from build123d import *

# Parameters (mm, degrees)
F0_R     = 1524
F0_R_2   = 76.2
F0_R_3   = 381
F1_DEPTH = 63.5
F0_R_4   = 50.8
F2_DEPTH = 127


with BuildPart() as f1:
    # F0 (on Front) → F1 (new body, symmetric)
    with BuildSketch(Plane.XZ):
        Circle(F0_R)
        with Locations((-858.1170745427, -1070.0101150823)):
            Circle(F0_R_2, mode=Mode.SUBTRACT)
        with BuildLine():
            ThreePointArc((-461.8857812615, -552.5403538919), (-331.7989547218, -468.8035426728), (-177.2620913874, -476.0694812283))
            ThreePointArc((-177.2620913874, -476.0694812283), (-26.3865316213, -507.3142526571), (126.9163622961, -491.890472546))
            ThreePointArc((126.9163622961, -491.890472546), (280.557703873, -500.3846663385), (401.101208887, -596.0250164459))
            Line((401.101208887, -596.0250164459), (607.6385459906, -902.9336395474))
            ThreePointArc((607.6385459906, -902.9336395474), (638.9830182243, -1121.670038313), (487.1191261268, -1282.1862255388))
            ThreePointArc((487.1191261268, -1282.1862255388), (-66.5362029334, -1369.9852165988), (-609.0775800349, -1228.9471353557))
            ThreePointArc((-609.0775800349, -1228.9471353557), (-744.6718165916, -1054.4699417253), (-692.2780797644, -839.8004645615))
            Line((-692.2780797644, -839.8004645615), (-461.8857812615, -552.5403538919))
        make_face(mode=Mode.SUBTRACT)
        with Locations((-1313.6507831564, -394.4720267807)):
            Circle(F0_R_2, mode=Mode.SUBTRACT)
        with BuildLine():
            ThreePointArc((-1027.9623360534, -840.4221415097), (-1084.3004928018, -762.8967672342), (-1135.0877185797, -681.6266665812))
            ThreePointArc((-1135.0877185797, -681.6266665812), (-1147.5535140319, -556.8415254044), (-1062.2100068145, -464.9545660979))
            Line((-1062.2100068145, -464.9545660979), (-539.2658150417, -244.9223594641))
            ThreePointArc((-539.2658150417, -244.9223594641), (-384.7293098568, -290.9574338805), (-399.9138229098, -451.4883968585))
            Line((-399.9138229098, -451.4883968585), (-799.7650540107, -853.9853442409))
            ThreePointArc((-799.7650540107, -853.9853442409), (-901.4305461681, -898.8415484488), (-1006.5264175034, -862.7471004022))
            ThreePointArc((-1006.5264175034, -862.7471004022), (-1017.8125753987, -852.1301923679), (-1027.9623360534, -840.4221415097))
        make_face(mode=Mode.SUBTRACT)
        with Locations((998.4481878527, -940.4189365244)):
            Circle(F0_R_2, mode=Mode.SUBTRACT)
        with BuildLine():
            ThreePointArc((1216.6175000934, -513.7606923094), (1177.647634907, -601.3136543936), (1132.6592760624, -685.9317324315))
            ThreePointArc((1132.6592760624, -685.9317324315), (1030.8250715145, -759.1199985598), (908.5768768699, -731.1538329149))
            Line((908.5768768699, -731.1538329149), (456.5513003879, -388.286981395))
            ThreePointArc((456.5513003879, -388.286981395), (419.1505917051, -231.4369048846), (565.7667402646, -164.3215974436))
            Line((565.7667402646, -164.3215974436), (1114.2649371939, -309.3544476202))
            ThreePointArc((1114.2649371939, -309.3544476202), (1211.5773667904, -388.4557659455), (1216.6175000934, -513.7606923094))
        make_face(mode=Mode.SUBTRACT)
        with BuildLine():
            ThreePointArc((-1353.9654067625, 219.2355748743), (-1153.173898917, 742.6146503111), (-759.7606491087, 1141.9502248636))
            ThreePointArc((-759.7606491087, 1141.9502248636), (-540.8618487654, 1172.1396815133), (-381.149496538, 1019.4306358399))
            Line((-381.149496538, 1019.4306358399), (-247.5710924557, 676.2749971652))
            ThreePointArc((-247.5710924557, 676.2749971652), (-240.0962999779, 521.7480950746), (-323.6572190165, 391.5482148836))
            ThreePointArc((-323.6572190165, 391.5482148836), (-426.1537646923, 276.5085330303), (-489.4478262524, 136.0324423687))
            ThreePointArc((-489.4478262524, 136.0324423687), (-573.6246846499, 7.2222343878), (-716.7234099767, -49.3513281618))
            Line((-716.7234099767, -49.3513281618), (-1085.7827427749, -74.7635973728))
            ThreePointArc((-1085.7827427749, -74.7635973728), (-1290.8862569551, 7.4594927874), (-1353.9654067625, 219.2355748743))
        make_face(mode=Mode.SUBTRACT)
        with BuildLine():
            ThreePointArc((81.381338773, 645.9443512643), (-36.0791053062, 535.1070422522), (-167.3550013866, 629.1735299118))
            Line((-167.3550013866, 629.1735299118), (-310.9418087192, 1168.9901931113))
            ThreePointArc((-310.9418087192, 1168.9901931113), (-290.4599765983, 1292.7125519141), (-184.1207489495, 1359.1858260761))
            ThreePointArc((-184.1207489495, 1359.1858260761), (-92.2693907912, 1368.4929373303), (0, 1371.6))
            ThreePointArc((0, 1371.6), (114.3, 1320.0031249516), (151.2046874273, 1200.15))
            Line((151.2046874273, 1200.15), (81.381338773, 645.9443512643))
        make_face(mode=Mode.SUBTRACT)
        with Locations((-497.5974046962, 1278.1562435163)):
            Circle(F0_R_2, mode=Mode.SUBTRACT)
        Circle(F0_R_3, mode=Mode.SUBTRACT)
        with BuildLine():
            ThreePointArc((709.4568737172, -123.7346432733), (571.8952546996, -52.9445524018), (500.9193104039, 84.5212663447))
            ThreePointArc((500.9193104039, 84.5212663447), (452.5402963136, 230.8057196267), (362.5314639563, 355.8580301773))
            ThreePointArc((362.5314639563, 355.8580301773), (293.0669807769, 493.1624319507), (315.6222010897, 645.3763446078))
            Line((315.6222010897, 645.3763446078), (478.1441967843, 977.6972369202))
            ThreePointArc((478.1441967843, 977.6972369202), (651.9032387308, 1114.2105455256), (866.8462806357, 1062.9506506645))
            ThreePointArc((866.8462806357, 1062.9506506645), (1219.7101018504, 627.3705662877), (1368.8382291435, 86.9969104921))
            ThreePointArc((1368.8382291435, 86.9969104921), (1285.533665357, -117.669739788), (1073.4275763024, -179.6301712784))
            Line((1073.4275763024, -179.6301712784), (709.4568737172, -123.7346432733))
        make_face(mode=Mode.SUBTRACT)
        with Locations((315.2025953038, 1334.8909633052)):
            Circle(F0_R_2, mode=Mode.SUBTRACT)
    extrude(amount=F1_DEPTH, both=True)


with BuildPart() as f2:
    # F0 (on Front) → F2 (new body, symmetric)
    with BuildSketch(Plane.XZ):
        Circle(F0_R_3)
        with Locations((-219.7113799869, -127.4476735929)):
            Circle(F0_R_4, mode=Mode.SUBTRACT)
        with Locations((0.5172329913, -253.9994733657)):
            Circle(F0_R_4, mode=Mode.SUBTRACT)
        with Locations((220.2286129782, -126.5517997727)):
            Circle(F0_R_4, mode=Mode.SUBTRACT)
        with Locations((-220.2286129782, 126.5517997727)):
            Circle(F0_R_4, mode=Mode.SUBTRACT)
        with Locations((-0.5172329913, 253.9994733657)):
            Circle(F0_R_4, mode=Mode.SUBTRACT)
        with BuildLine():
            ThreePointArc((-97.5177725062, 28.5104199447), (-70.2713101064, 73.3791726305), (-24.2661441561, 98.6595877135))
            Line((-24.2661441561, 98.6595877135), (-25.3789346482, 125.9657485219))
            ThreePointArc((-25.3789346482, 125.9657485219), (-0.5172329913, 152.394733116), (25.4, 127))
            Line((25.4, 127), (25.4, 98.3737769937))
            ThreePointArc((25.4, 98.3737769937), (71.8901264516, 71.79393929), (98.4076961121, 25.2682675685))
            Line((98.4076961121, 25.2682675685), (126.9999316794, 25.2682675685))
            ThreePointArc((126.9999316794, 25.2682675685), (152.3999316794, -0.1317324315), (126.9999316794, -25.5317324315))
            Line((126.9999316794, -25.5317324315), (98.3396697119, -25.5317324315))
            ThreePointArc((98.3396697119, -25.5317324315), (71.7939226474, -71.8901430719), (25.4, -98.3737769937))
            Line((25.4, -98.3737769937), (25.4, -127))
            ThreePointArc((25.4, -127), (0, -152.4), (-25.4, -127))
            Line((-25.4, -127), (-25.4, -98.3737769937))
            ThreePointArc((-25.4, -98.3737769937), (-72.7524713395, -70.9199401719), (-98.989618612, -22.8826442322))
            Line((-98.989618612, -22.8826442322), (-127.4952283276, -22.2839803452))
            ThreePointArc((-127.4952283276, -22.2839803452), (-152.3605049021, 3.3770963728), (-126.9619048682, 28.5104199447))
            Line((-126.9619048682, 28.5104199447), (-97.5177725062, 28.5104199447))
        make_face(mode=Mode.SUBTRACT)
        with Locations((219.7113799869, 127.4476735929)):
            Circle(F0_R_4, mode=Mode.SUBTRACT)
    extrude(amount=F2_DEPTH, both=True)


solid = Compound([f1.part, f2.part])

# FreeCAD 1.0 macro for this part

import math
import FreeCAD as App
import Part
import Sketcher

V = App.Vector
Q = App.Units.Quantity

doc = App.newDocument("Part")
body = doc.addObject("PartDesign::Body", "Body")

sketch1 = body.newObject("Sketcher::SketchObject", "Sketch")
sketch1.AttachmentSupport = (doc.getObject("XZ_Plane"), [""])
sketch1.MapMode = "FlatFace"
sketch1.addGeometry(Part.Circle(V(0, 0, 0), V(0, 0, 1), 1524), False)
sketch1.addGeometry(Part.Circle(V(-858.117075, -1070.010115, 0), V(0, 0, 1), 76.2), False)
sketch1.addGeometry(Part.LineSegment(V(-692.27808, -839.800465, 0), V(-461.885781, -552.540354, 0)), False)
sketch1.addGeometry(Part.ArcOfCircle(Part.Circle(V(-265.893137, -714.104222, 0), V(0, 0, 1), 254), math.radians(69.577437), math.radians(140.5)), False)
sketch1.addGeometry(Part.ArcOfCircle(Part.Circle(V(0, 0, 0), V(0, 0, 1), 508), math.radians(-110.422563), math.radians(-75.53223)), False)
sketch1.addGeometry(Part.ArcOfCircle(Part.Circle(V(190.374543, -737.835709, 0), V(0, 0, 1), 254), math.radians(33.93899), math.radians(104.46777)), False)
sketch1.addGeometry(Part.LineSegment(V(401.101209, -596.025016, 0), V(607.638546, -902.93364, 0)), False)
sketch1.addGeometry(Part.ArcOfCircle(Part.Circle(V(396.911881, -1044.744332, 0), V(0, 0, 1), 254), math.radians(-69.197568), math.radians(33.93899)), False)
sketch1.addGeometry(Part.ArcOfCircle(Part.Circle(V(0, 0, 0), V(0, 0, 1), 1371.6), math.radians(-116.363441), math.radians(-69.197568)), False)
sketch1.addGeometry(Part.ArcOfCircle(Part.Circle(V(-496.285436, -1001.364333, 0), V(0, 0, 1), 254), math.radians(140.5), math.radians(243.636559)), False)
sketch1.addGeometry(Part.Circle(V(-1313.650783, -394.472027, 0), V(0, 0, 1), 76.2), False)
sketch1.addGeometry(Part.ArcOfCircle(Part.Circle(V(-907.882885, -746.5782, 0), V(0, 0, 1), 152.4), math.radians(-141.991826), math.radians(-130.335882)), False)
sketch1.addGeometry(Part.ArcOfCircle(Part.Circle(V(52.752725, 4.173333, 0), V(0, 0, 1), 1371.6), math.radians(-150), math.radians(-141.991826)), False)
sketch1.addGeometry(Part.ArcOfCircle(Part.Circle(V(-1003.105447, -605.426667, 0), V(0, 0, 1), 152.4), math.radians(112.819244), math.radians(210)), False)
sketch1.addGeometry(Part.LineSegment(V(-1062.210007, -464.954566, 0), V(-539.265815, -244.922359, 0)), False)
sketch1.addGeometry(Part.ArcOfCircle(Part.Circle(V(-490.012015, -361.982443, 0), V(0, 0, 1), 127), math.radians(-44.81107), math.radians(112.819244)), False)
sketch1.addGeometry(Part.LineSegment(V(-399.913823, -451.488397, 0), V(-799.765054, -853.985344, 0)), False)
sketch1.addGeometry(Part.ArcOfCircle(Part.Circle(V(-907.882885, -746.5782, 0), V(0, 0, 1), 152.4), math.radians(-130.335882), math.radians(-44.81107)), False)
sketch1.addGeometry(Part.Circle(V(998.448188, -940.418937, 0), V(0, 0, 1), 76.2), False)
sketch1.addGeometry(Part.Circle(V(0, 0, 0), V(0, 0, 1), 381), False)
sketch1.addGeometry(Part.ArcOfCircle(Part.Circle(V(1075.306537, -456.690808, 0), V(0, 0, 1), 152.4), math.radians(-21.991826), math.radians(75.18893)), False)
sketch1.addGeometry(Part.ArcOfCircle(Part.Circle(V(-55.181168, -0.131732, 0), V(0, 0, 1), 1371.6), math.radians(-30), math.radians(-21.991826)), False)
sketch1.addGeometry(Part.ArcOfCircle(Part.Circle(V(1000.677005, -609.731732, 0), V(0, 0, 1), 152.4), math.radians(-127.180756), math.radians(-30)), False)
sketch1.addGeometry(Part.LineSegment(V(908.576877, -731.153833, 0), V(456.5513, -388.286981, 0)), False)
sketch1.addGeometry(Part.ArcOfCircle(Part.Circle(V(533.301407, -287.101898, 0), V(0, 0, 1), 127), math.radians(75.18893), math.radians(232.819244)), False)
sketch1.addGeometry(Part.LineSegment(V(565.76674, -164.321597, 0), V(1114.264937, -309.354448, 0)), False)
sketch1.addGeometry(Part.ArcOfCircle(Part.Circle(V(-1103.231072, 178.636394, 0), V(0, 0, 1), 254), math.radians(170.802432), math.radians(273.93899)), False)
sketch1.addGeometry(Part.ArcOfCircle(Part.Circle(V(0, 0, 0), V(0, 0, 1), 1371.6), math.radians(123.636559), math.radians(170.802432)), False)
sketch1.addGeometry(Part.ArcOfCircle(Part.Circle(V(-619.064233, 930.477961, 0), V(0, 0, 1), 254), math.radians(20.5), math.radians(123.636559)), False)
sketch1.addGeometry(Part.LineSegment(V(-381.149497, 1019.430636, 0), V(-247.571092, 676.274997, 0)), False)
sketch1.addGeometry(Part.ArcOfCircle(Part.Circle(V(-485.485829, 587.322322, 0), V(0, 0, 1), 254), math.radians(-50.422563), math.radians(20.5)), False)
sketch1.addGeometry(Part.ArcOfCircle(Part.Circle(V(0, 0, 0), V(0, 0, 1), 508), math.radians(129.577437), math.radians(164.46777)), False)
sketch1.addGeometry(Part.ArcOfCircle(Part.Circle(V(-734.171739, 204.048664, 0), V(0, 0, 1), 254), math.radians(-86.06101), math.radians(-15.53223)), False)
sketch1.addGeometry(Part.LineSegment(V(-716.72341, -49.351328, 0), V(-1085.782743, -74.763597, 0)), False)
sketch1.addGeometry(Part.LineSegment(V(151.204687, 1200.15, 0), V(81.381339, 645.944351, 0)), False)
sketch1.addGeometry(Part.ArcOfCircle(Part.Circle(V(-44.622567, 661.819351, 0), V(0, 0, 1), 127), math.radians(-165.104689), math.radians(-7.180756)), False)
sketch1.addGeometry(Part.LineSegment(V(-167.355001, 629.17353, 0), V(-310.941809, 1168.990193, 0)), False)
sketch1.addGeometry(Part.ArcOfCircle(Part.Circle(V(-163.662888, 1208.165179, 0), V(0, 0, 1), 152.4), math.radians(97.714556), math.radians(194.895311)), False)
sketch1.addGeometry(Part.ArcOfCircle(Part.Circle(V(0, 0, 0), V(0, 0, 1), 1371.6), math.radians(90), math.radians(97.714556)), False)
sketch1.addGeometry(Part.ArcOfCircle(Part.Circle(V(0, 1219.2, 0), V(0, 0, 1), 152.4), math.radians(-7.180756), math.radians(90)), False)
sketch1.addGeometry(Part.Circle(V(-497.597405, 1278.156244, 0), V(0, 0, 1), 76.2), False)
sketch1.addGeometry(Part.LineSegment(V(1073.427576, -179.630171, 0), V(709.456874, -123.734643, 0)), False)
sketch1.addGeometry(Part.ArcOfCircle(Part.Circle(V(751.378966, 126.7819, 0), V(0, 0, 1), 254), math.radians(-170.422563), math.radians(-99.5)), False)
sketch1.addGeometry(Part.ArcOfCircle(Part.Circle(V(0, 0, 0), V(0, 0, 1), 508), math.radians(9.577437), math.radians(44.46777)), False)
sketch1.addGeometry(Part.ArcOfCircle(Part.Circle(V(543.797196, 533.787045, 0), V(0, 0, 1), 254), math.radians(153.93899), math.radians(224.46777)), False)
sketch1.addGeometry(Part.LineSegment(V(315.622201, 645.376345, 0), V(478.144197, 977.697237, 0)), False)
sketch1.addGeometry(Part.ArcOfCircle(Part.Circle(V(706.319192, 866.107938, 0), V(0, 0, 1), 254), math.radians(50.802432), math.radians(153.93899)), False)
sketch1.addGeometry(Part.ArcOfCircle(Part.Circle(V(0, 0, 0), V(0, 0, 1), 1371.6), math.radians(3.636559), math.radians(50.802432)), False)
sketch1.addGeometry(Part.ArcOfCircle(Part.Circle(V(1115.349668, 70.886372, 0), V(0, 0, 1), 254), math.radians(-99.5), math.radians(3.636559)), False)
sketch1.addGeometry(Part.Circle(V(315.202595, 1334.890963, 0), V(0, 0, 1), 76.2), False)
sketch1.addConstraint(Sketcher.Constraint("Coincident", 2, 2, 3, 2))
sketch1.addConstraint(Sketcher.Constraint("Tangent", 3, 1, 4, 1))
sketch1.addConstraint(Sketcher.Constraint("Tangent", 4, 2, 5, 2))
sketch1.addConstraint(Sketcher.Constraint("Tangent", 5, 1, 6, 1))
sketch1.addConstraint(Sketcher.Constraint("Tangent", 6, 2, 7, 2))
sketch1.addConstraint(Sketcher.Constraint("Tangent", 7, 1, 8, 2))
sketch1.addConstraint(Sketcher.Constraint("Tangent", 8, 1, 9, 2))
sketch1.addConstraint(Sketcher.Constraint("Coincident", 9, 1, 2, 1))
sketch1.addConstraint(Sketcher.Constraint("Tangent", 11, 1, 12, 2))
sketch1.addConstraint(Sketcher.Constraint("Tangent", 12, 1, 13, 2))
sketch1.addConstraint(Sketcher.Constraint("Tangent", 13, 1, 14, 1))
sketch1.addConstraint(Sketcher.Constraint("Tangent", 14, 2, 15, 2))
sketch1.addConstraint(Sketcher.Constraint("Tangent", 15, 1, 16, 1))
sketch1.addConstraint(Sketcher.Constraint("Tangent", 16, 2, 17, 2))
sketch1.addConstraint(Sketcher.Constraint("Tangent", 17, 1, 11, 2))
sketch1.addConstraint(Sketcher.Constraint("Tangent", 20, 1, 21, 2))
sketch1.addConstraint(Sketcher.Constraint("Tangent", 21, 1, 22, 2))
sketch1.addConstraint(Sketcher.Constraint("Tangent", 22, 1, 23, 1))
sketch1.addConstraint(Sketcher.Constraint("Tangent", 23, 2, 24, 2))
sketch1.addConstraint(Sketcher.Constraint("Tangent", 24, 1, 25, 1))
sketch1.addConstraint(Sketcher.Constraint("Tangent", 25, 2, 20, 2))
sketch1.addConstraint(Sketcher.Constraint("Tangent", 26, 1, 27, 2))
sketch1.addConstraint(Sketcher.Constraint("Tangent", 27, 1, 28, 2))
sketch1.addConstraint(Sketcher.Constraint("Coincident", 28, 1, 29, 1))
sketch1.addConstraint(Sketcher.Constraint("Coincident", 29, 2, 30, 2))
sketch1.addConstraint(Sketcher.Constraint("Tangent", 30, 1, 31, 1))
sketch1.addConstraint(Sketcher.Constraint("Tangent", 31, 2, 32, 2))
sketch1.addConstraint(Sketcher.Constraint("Tangent", 32, 1, 33, 1))
sketch1.addConstraint(Sketcher.Constraint("Tangent", 33, 2, 26, 2))
sketch1.addConstraint(Sketcher.Constraint("Tangent", 34, 2, 35, 2))
sketch1.addConstraint(Sketcher.Constraint("Tangent", 35, 1, 36, 1))
sketch1.addConstraint(Sketcher.Constraint("Tangent", 36, 2, 37, 2))
sketch1.addConstraint(Sketcher.Constraint("Tangent", 37, 1, 38, 2))
sketch1.addConstraint(Sketcher.Constraint("Tangent", 38, 1, 39, 2))
sketch1.addConstraint(Sketcher.Constraint("Tangent", 39, 1, 34, 1))
sketch1.addConstraint(Sketcher.Constraint("Coincident", 41, 2, 42, 2))
sketch1.addConstraint(Sketcher.Constraint("Tangent", 42, 1, 43, 1))
sketch1.addConstraint(Sketcher.Constraint("Tangent", 43, 2, 44, 2))
sketch1.addConstraint(Sketcher.Constraint("Tangent", 44, 1, 45, 1))
sketch1.addConstraint(Sketcher.Constraint("Tangent", 45, 2, 46, 2))
sketch1.addConstraint(Sketcher.Constraint("Tangent", 46, 1, 47, 2))
sketch1.addConstraint(Sketcher.Constraint("Tangent", 47, 1, 48, 2))
sketch1.addConstraint(Sketcher.Constraint("Coincident", 48, 1, 41, 1))
sketch1.addConstraint(Sketcher.Constraint("Coincident", 0, 3, -1, 1))
sketch1.addConstraint(Sketcher.Constraint("Coincident", 4, 3, -1, 1))
sketch1.addConstraint(Sketcher.Constraint("Coincident", 8, 3, -1, 1))
sketch1.addConstraint(Sketcher.Constraint("Coincident", 19, 3, -1, 1))
sketch1.addConstraint(Sketcher.Constraint("Coincident", 27, 3, -1, 1))
sketch1.addConstraint(Sketcher.Constraint("Coincident", 31, 3, -1, 1))
sketch1.addConstraint(Sketcher.Constraint("Coincident", 38, 3, -1, 1))
sketch1.addConstraint(Sketcher.Constraint("Coincident", 43, 3, -1, 1))
sketch1.addConstraint(Sketcher.Constraint("Coincident", 47, 3, -1, 1))
sketch1.addConstraint(Sketcher.Constraint("Equal", 3, 5))
sketch1.addConstraint(Sketcher.Constraint("Equal", 5, 7))
sketch1.addConstraint(Sketcher.Constraint("Equal", 7, 9))
sketch1.addConstraint(Sketcher.Constraint("Equal", 1, 10))
sketch1.addConstraint(Sketcher.Constraint("Equal", 8, 12))
sketch1.addConstraint(Sketcher.Constraint("Equal", 11, 13))
sketch1.addConstraint(Sketcher.Constraint("Equal", 13, 17))
sketch1.addConstraint(Sketcher.Constraint("Equal", 10, 18))
sketch1.addConstraint(Sketcher.Constraint("Equal", 17, 20))
sketch1.addConstraint(Sketcher.Constraint("Equal", 12, 21))
sketch1.addConstraint(Sketcher.Constraint("Equal", 20, 22))
sketch1.addConstraint(Sketcher.Constraint("Equal", 15, 24))
sketch1.addConstraint(Sketcher.Constraint("Equal", 9, 26))
sketch1.addConstraint(Sketcher.Constraint("Equal", 21, 27))
sketch1.addConstraint(Sketcher.Constraint("Equal", 26, 28))
sketch1.addConstraint(Sketcher.Constraint("Equal", 28, 30))
sketch1.addConstraint(Sketcher.Constraint("Equal", 4, 31))
sketch1.addConstraint(Sketcher.Constraint("Equal", 30, 32))
sketch1.addConstraint(Sketcher.Constraint("Equal", 24, 35))
sketch1.addConstraint(Sketcher.Constraint("Equal", 22, 37))
sketch1.addConstraint(Sketcher.Constraint("Equal", 27, 38))
sketch1.addConstraint(Sketcher.Constraint("Equal", 37, 39))
sketch1.addConstraint(Sketcher.Constraint("Equal", 18, 40))
sketch1.addConstraint(Sketcher.Constraint("Equal", 32, 42))
sketch1.addConstraint(Sketcher.Constraint("Equal", 31, 43))
sketch1.addConstraint(Sketcher.Constraint("Equal", 42, 44))
sketch1.addConstraint(Sketcher.Constraint("Equal", 44, 46))
sketch1.addConstraint(Sketcher.Constraint("Equal", 38, 47))
sketch1.addConstraint(Sketcher.Constraint("Equal", 46, 48))
sketch1.addConstraint(Sketcher.Constraint("Equal", 40, 49))
sketch1.addConstraint(Sketcher.Constraint("PointOnObject", 39, 3, -2))
sketch1.addConstraint(Sketcher.Constraint("Equal", 14, 16))
sketch1.addConstraint(Sketcher.Constraint("Equal", 16, 23))
sketch1.addConstraint(Sketcher.Constraint("Equal", 23, 25))
sketch1.addConstraint(Sketcher.Constraint("Equal", 2, 29))
sketch1.addConstraint(Sketcher.Constraint("Equal", 6, 33))
sketch1.addConstraint(Sketcher.Constraint("Equal", 34, 36))
sketch1.addConstraint(Sketcher.Constraint("Equal", 29, 41))
sketch1.addConstraint(Sketcher.Constraint("Equal", 33, 45))
sketch1.addConstraint(Sketcher.Constraint("Diameter", 0, Q("120 in")))
sketch1.addConstraint(Sketcher.Constraint("Diameter", 1, Q("6 in")))
sketch1.addConstraint(Sketcher.Constraint("Diameter", 19, Q("30 in")))
sketch1.addConstraint(Sketcher.Constraint("Radius", 3, Q("10 in")))
sketch1.addConstraint(Sketcher.Constraint("Radius", 4, Q("20 in")))
sketch1.addConstraint(Sketcher.Constraint("Radius", 8, Q("54 in")))
sketch1.addConstraint(Sketcher.Constraint("Radius", 11, Q("6 in")))
sketch1.addConstraint(Sketcher.Constraint("Radius", 15, Q("5 in")))
sketch1.addConstraint(Sketcher.Constraint("DistanceY", -1, 1, 29, 2, Q("26.6249999 in")))
sketch1.addConstraint(Sketcher.Constraint("DistanceY", 11, 3, -1, 1, 746.5782))
sketch1.addConstraint(Sketcher.Constraint("DistanceY", -1, 1, 42, 3, 126.7819))
sketch1.addConstraint(Sketcher.Constraint("DistanceY", 17, 1, -1, 1, 862.7471))
sketch1.addConstraint(Sketcher.Constraint("DistanceX", -1, 1, 20, 1, 1216.6175))
sketch1.addConstraint(Sketcher.Constraint("DistanceX", -1, 1, 23, 2, 456.5513))
sketch1.addConstraint(Sketcher.Constraint("DistanceX", 35, 1, -1, 1, 167.355001))
sketch1.addConstraint(Sketcher.Constraint("DistanceX", -1, 1, 44, 1, 315.622201))
sketch1.addConstraint(Sketcher.Constraint("Distance", 2, 368.237671))
sketch1.addConstraint(Sketcher.Constraint("Distance", 34, 558.586789))
sketch1.addConstraint(Sketcher.Constraint("DistanceY", 3, 3, -1, 1, 714.104222))
sketch1.addConstraint(Sketcher.Constraint("DistanceY", 5, 3, -1, 1, 737.835709))
sketch1.addConstraint(Sketcher.Constraint("DistanceX", -1, 1, 7, 3, 396.911881))
sketch1.addConstraint(Sketcher.Constraint("DistanceY", -1, 1, 28, 3, 930.477961))
sketch1.addConstraint(Sketcher.Constraint("DistanceX", 30, 3, -1, 1, 485.485829))
sketch1.addConstraint(Sketcher.Constraint("DistanceX", 32, 3, -1, 1, 734.171739))
sketch1.addConstraint(Sketcher.Constraint("DistanceX", -1, 1, 48, 3, 1115.349668))
sketch1.addConstraint(Sketcher.Constraint("DistanceX", 2, 2, -1, 1, 461.885781))
sketch1.addConstraint(Sketcher.Constraint("DistanceX", 9, 1, -1, 1, 692.27808))
sketch1.addConstraint(Sketcher.Constraint("DistanceY", 14, 2, -1, 1, 244.922359))
sketch1.addConstraint(Sketcher.Constraint("DistanceY", 23, 2, -1, 1, 388.286981))
sketch1.addConstraint(Sketcher.Constraint("DistanceY", 48, 1, -1, 1, 179.630171))
sketch1.addConstraint(Sketcher.Constraint("Distance", 14, 567.348922))
sketch1.addConstraint(Sketcher.Constraint("DistanceX", 1, 3, -1, 1, 858.117075))
sketch1.addConstraint(Sketcher.Constraint("DistanceY", 1, 3, -1, 1, 1070.010115))
sketch1.addConstraint(Sketcher.Constraint("DistanceX", 10, 3, -1, 1, 1313.650783))
sketch1.addConstraint(Sketcher.Constraint("DistanceY", 10, 3, -1, 1, 394.472027))
sketch1.addConstraint(Sketcher.Constraint("DistanceX", 11, 3, -1, 1, 907.882885))
sketch1.addConstraint(Sketcher.Constraint("DistanceX", -1, 1, 12, 3, 52.752725))
sketch1.addConstraint(Sketcher.Constraint("DistanceX", -1, 1, 18, 3, 998.448188))
sketch1.addConstraint(Sketcher.Constraint("DistanceY", 18, 3, -1, 1, 940.418937))
sketch1.addConstraint(Sketcher.Constraint("DistanceX", -1, 1, 20, 3, 1075.306537))
sketch1.addConstraint(Sketcher.Constraint("DistanceX", 40, 3, -1, 1, 497.597405))
sketch1.addConstraint(Sketcher.Constraint("DistanceY", -1, 1, 40, 3, 1278.156244))
sketch1.addConstraint(Sketcher.Constraint("DistanceX", -1, 1, 49, 3, 315.202595))
sketch1.addConstraint(Sketcher.Constraint("DistanceY", -1, 1, 49, 3, 1334.890963))
pad1 = body.newObject("PartDesign::Pad", "Pad")
pad1.Profile = sketch1
pad1.Length = Q("5 in")
pad1.Midplane = True
body2 = doc.addObject("PartDesign::Body", "Body001")

sketch2 = body2.newObject("Sketcher::SketchObject", "Sketch001")
sketch2.AttachmentSupport = (doc.getObject("XZ_Plane001"), [""])
sketch2.MapMode = "FlatFace"
sketch2.addGeometry(Part.Circle(V(0, 0, 0), V(0, 0, 1), 381), False)
sketch2.addGeometry(Part.Circle(V(-219.71138, -127.447674, 0), V(0, 0, 1), 50.8), False)
sketch2.addGeometry(Part.Circle(V(0.517233, -253.999473, 0), V(0, 0, 1), 50.8), False)
sketch2.addGeometry(Part.Circle(V(220.228613, -126.5518, 0), V(0, 0, 1), 50.8), False)
sketch2.addGeometry(Part.Circle(V(-220.228613, 126.5518, 0), V(0, 0, 1), 50.8), False)
sketch2.addGeometry(Part.Circle(V(-0.517233, 253.999473, 0), V(0, 0, 1), 50.8), False)
sketch2.addGeometry(Part.LineSegment(V(-126.961905, 28.51042, 0), V(-97.517773, 28.51042, 0)), False)
sketch2.addGeometry(Part.ArcOfCircle(Part.Circle(V(0, 0, 0), V(0, 0, 1), 101.6), math.radians(103.818086), math.radians(163.703124)), False)
sketch2.addGeometry(Part.LineSegment(V(-24.266144, 98.659588, 0), V(-25.378935, 125.965749, 0)), False)
sketch2.addGeometry(Part.ArcOfCircle(Part.Circle(V(0, 127, 0), V(0, 0, 1), 25.4), math.radians(0), math.radians(182.333647)), False)
sketch2.addGeometry(Part.LineSegment(V(25.4, 127, 0), V(25.4, 98.373777, 0)), False)
sketch2.addGeometry(Part.ArcOfCircle(Part.Circle(V(0, 0, 0), V(0, 0, 1), 101.6), math.radians(14.400801), math.radians(75.522488)), False)
sketch2.addGeometry(Part.LineSegment(V(98.407696, 25.268268, 0), V(126.999932, 25.268268, 0)), False)
sketch2.addGeometry(Part.ArcOfCircle(Part.Circle(V(126.999932, -0.131732, 0), V(0, 0, 1), 25.4), math.radians(-90), math.radians(90)), False)
sketch2.addGeometry(Part.LineSegment(V(126.999932, -25.531732, 0), V(98.33967, -25.531732, 0)), False)
sketch2.addGeometry(Part.ArcOfCircle(Part.Circle(V(0, 0, 0), V(0, 0, 1), 101.6), math.radians(-75.522488), math.radians(-14.55425)), False)
sketch2.addGeometry(Part.LineSegment(V(25.4, -98.373777, 0), V(25.4, -127, 0)), False)
sketch2.addGeometry(Part.ArcOfCircle(Part.Circle(V(0, -127, 0), V(0, 0, 1), 25.4), math.radians(180), math.radians(360)), False)
sketch2.addGeometry(Part.LineSegment(V(-25.4, -127, 0), V(-25.4, -98.373777, 0)), False)
sketch2.addGeometry(Part.ArcOfCircle(Part.Circle(V(0, 0, 0), V(0, 0, 1), 101.6), math.radians(-166.984016), math.radians(-104.477512)), False)
sketch2.addGeometry(Part.LineSegment(V(-98.989619, -22.882644, 0), V(-127.495228, -22.28398, 0)), False)
sketch2.addGeometry(Part.ArcOfCircle(Part.Circle(V(-126.961905, 3.11042, 0), V(0, 0, 1), 25.4), math.radians(90), math.radians(268.796873)), False)
sketch2.addGeometry(Part.Circle(V(219.71138, 127.447674, 0), V(0, 0, 1), 50.8), False)
sketch2.addConstraint(Sketcher.Constraint("Coincident", 6, 2, 7, 2))
sketch2.addConstraint(Sketcher.Constraint("Coincident", 7, 1, 8, 1))
sketch2.addConstraint(Sketcher.Constraint("Tangent", 8, 2, 9, 2))
sketch2.addConstraint(Sketcher.Constraint("Tangent", 9, 1, 10, 1))
sketch2.addConstraint(Sketcher.Constraint("Coincident", 10, 2, 11, 2))
sketch2.addConstraint(Sketcher.Constraint("Coincident", 11, 1, 12, 1))
sketch2.addConstraint(Sketcher.Constraint("Tangent", 12, 2, 13, 2))
sketch2.addConstraint(Sketcher.Constraint("Tangent", 13, 1, 14, 1))
sketch2.addConstraint(Sketcher.Constraint("Coincident", 14, 2, 15, 2))
sketch2.addConstraint(Sketcher.Constraint("Coincident", 15, 1, 16, 1))
sketch2.addConstraint(Sketcher.Constraint("Tangent", 16, 2, 17, 2))
sketch2.addConstraint(Sketcher.Constraint("Tangent", 17, 1, 18, 1))
sketch2.addConstraint(Sketcher.Constraint("Coincident", 18, 2, 19, 2))
sketch2.addConstraint(Sketcher.Constraint("Coincident", 19, 1, 20, 1))
sketch2.addConstraint(Sketcher.Constraint("Tangent", 20, 2, 21, 2))
sketch2.addConstraint(Sketcher.Constraint("Tangent", 21, 1, 6, 1))
sketch2.addConstraint(Sketcher.Constraint("Horizontal", 6))
sketch2.addConstraint(Sketcher.Constraint("Vertical", 10))
sketch2.addConstraint(Sketcher.Constraint("Horizontal", 12))
sketch2.addConstraint(Sketcher.Constraint("Horizontal", 14))
sketch2.addConstraint(Sketcher.Constraint("Vertical", 16))
sketch2.addConstraint(Sketcher.Constraint("Vertical", 18))
sketch2.addConstraint(Sketcher.Constraint("Coincident", 0, 3, -1, 1))
sketch2.addConstraint(Sketcher.Constraint("Coincident", 7, 3, -1, 1))
sketch2.addConstraint(Sketcher.Constraint("Coincident", 11, 3, -1, 1))
sketch2.addConstraint(Sketcher.Constraint("Coincident", 15, 3, -1, 1))
sketch2.addConstraint(Sketcher.Constraint("Coincident", 19, 3, -1, 1))
sketch2.addConstraint(Sketcher.Constraint("Equal", 1, 2))
sketch2.addConstraint(Sketcher.Constraint("Equal", 2, 3))
sketch2.addConstraint(Sketcher.Constraint("Equal", 3, 4))
sketch2.addConstraint(Sketcher.Constraint("Equal", 4, 5))
sketch2.addConstraint(Sketcher.Constraint("Equal", 7, 11))
sketch2.addConstraint(Sketcher.Constraint("Equal", 9, 13))
sketch2.addConstraint(Sketcher.Constraint("Equal", 11, 15))
sketch2.addConstraint(Sketcher.Constraint("Equal", 13, 17))
sketch2.addConstraint(Sketcher.Constraint("Equal", 15, 19))
sketch2.addConstraint(Sketcher.Constraint("Equal", 17, 21))
sketch2.addConstraint(Sketcher.Constraint("Equal", 5, 22))
sketch2.addConstraint(Sketcher.Constraint("Symmetric", 3, 3, 4, 3, -1, 1))
sketch2.addConstraint(Sketcher.Constraint("Symmetric", 2, 3, 5, 3, -1, 1))
sketch2.addConstraint(Sketcher.Constraint("Symmetric", 9, 3, 17, 3, -1, 1))
sketch2.addConstraint(Sketcher.Constraint("Symmetric", 1, 3, 22, 3, -1, 1))
sketch2.addConstraint(Sketcher.Constraint("PointOnObject", 9, 3, -2))
sketch2.addConstraint(Sketcher.Constraint("Diameter", 0, Q("30 in")))
sketch2.addConstraint(Sketcher.Constraint("Diameter", 1, Q("4 in")))
sketch2.addConstraint(Sketcher.Constraint("Radius", 7, Q("4 in")))
sketch2.addConstraint(Sketcher.Constraint("Radius", 9, Q("1 in")))
sketch2.addConstraint(Sketcher.Constraint("DistanceY", -1, 1, 9, 3, Q("5 in")))
sketch2.addConstraint(Sketcher.Constraint("DistanceX", 21, 3, -1, 1, Q("4.9985002 in")))
sketch2.addConstraint(Sketcher.Constraint("DistanceX", 14, 2, 14, 1, 28.660262))
sketch2.addConstraint(Sketcher.Constraint("DistanceY", 3, 3, -1, 1, 126.5518))
sketch2.addConstraint(Sketcher.Constraint("DistanceY", 2, 3, 1, 3, 126.5518))
sketch2.addConstraint(Sketcher.Constraint("DistanceY", 20, 2, 21, 3, 25.3944))
sketch2.addConstraint(Sketcher.Constraint("DistanceX", 6, 1, 6, 2, 29.444132))
sketch2.addConstraint(Sketcher.Constraint("DistanceX", 12, 1, 12, 2, 28.592236))
sketch2.addConstraint(Sketcher.Constraint("DistanceX", 1, 3, -1, 1, 219.71138))
sketch2.addConstraint(Sketcher.Constraint("DistanceY", -1, 1, 8, 2, 125.965749))
sketch2.addConstraint(Sketcher.Constraint("DistanceX", 2, 3, 3, 3, 219.71138))
sketch2.addConstraint(Sketcher.Constraint("DistanceX", 13, 3, 3, 3, 93.228681))
sketch2.addConstraint(Sketcher.Constraint("DistanceY", 1, 3, -1, 1, 127.447674))
pad2 = body2.newObject("PartDesign::Pad", "Pad001")
pad2.Profile = sketch2
pad2.Length = Q("10 in")
pad2.Midplane = True

doc.recompute()
